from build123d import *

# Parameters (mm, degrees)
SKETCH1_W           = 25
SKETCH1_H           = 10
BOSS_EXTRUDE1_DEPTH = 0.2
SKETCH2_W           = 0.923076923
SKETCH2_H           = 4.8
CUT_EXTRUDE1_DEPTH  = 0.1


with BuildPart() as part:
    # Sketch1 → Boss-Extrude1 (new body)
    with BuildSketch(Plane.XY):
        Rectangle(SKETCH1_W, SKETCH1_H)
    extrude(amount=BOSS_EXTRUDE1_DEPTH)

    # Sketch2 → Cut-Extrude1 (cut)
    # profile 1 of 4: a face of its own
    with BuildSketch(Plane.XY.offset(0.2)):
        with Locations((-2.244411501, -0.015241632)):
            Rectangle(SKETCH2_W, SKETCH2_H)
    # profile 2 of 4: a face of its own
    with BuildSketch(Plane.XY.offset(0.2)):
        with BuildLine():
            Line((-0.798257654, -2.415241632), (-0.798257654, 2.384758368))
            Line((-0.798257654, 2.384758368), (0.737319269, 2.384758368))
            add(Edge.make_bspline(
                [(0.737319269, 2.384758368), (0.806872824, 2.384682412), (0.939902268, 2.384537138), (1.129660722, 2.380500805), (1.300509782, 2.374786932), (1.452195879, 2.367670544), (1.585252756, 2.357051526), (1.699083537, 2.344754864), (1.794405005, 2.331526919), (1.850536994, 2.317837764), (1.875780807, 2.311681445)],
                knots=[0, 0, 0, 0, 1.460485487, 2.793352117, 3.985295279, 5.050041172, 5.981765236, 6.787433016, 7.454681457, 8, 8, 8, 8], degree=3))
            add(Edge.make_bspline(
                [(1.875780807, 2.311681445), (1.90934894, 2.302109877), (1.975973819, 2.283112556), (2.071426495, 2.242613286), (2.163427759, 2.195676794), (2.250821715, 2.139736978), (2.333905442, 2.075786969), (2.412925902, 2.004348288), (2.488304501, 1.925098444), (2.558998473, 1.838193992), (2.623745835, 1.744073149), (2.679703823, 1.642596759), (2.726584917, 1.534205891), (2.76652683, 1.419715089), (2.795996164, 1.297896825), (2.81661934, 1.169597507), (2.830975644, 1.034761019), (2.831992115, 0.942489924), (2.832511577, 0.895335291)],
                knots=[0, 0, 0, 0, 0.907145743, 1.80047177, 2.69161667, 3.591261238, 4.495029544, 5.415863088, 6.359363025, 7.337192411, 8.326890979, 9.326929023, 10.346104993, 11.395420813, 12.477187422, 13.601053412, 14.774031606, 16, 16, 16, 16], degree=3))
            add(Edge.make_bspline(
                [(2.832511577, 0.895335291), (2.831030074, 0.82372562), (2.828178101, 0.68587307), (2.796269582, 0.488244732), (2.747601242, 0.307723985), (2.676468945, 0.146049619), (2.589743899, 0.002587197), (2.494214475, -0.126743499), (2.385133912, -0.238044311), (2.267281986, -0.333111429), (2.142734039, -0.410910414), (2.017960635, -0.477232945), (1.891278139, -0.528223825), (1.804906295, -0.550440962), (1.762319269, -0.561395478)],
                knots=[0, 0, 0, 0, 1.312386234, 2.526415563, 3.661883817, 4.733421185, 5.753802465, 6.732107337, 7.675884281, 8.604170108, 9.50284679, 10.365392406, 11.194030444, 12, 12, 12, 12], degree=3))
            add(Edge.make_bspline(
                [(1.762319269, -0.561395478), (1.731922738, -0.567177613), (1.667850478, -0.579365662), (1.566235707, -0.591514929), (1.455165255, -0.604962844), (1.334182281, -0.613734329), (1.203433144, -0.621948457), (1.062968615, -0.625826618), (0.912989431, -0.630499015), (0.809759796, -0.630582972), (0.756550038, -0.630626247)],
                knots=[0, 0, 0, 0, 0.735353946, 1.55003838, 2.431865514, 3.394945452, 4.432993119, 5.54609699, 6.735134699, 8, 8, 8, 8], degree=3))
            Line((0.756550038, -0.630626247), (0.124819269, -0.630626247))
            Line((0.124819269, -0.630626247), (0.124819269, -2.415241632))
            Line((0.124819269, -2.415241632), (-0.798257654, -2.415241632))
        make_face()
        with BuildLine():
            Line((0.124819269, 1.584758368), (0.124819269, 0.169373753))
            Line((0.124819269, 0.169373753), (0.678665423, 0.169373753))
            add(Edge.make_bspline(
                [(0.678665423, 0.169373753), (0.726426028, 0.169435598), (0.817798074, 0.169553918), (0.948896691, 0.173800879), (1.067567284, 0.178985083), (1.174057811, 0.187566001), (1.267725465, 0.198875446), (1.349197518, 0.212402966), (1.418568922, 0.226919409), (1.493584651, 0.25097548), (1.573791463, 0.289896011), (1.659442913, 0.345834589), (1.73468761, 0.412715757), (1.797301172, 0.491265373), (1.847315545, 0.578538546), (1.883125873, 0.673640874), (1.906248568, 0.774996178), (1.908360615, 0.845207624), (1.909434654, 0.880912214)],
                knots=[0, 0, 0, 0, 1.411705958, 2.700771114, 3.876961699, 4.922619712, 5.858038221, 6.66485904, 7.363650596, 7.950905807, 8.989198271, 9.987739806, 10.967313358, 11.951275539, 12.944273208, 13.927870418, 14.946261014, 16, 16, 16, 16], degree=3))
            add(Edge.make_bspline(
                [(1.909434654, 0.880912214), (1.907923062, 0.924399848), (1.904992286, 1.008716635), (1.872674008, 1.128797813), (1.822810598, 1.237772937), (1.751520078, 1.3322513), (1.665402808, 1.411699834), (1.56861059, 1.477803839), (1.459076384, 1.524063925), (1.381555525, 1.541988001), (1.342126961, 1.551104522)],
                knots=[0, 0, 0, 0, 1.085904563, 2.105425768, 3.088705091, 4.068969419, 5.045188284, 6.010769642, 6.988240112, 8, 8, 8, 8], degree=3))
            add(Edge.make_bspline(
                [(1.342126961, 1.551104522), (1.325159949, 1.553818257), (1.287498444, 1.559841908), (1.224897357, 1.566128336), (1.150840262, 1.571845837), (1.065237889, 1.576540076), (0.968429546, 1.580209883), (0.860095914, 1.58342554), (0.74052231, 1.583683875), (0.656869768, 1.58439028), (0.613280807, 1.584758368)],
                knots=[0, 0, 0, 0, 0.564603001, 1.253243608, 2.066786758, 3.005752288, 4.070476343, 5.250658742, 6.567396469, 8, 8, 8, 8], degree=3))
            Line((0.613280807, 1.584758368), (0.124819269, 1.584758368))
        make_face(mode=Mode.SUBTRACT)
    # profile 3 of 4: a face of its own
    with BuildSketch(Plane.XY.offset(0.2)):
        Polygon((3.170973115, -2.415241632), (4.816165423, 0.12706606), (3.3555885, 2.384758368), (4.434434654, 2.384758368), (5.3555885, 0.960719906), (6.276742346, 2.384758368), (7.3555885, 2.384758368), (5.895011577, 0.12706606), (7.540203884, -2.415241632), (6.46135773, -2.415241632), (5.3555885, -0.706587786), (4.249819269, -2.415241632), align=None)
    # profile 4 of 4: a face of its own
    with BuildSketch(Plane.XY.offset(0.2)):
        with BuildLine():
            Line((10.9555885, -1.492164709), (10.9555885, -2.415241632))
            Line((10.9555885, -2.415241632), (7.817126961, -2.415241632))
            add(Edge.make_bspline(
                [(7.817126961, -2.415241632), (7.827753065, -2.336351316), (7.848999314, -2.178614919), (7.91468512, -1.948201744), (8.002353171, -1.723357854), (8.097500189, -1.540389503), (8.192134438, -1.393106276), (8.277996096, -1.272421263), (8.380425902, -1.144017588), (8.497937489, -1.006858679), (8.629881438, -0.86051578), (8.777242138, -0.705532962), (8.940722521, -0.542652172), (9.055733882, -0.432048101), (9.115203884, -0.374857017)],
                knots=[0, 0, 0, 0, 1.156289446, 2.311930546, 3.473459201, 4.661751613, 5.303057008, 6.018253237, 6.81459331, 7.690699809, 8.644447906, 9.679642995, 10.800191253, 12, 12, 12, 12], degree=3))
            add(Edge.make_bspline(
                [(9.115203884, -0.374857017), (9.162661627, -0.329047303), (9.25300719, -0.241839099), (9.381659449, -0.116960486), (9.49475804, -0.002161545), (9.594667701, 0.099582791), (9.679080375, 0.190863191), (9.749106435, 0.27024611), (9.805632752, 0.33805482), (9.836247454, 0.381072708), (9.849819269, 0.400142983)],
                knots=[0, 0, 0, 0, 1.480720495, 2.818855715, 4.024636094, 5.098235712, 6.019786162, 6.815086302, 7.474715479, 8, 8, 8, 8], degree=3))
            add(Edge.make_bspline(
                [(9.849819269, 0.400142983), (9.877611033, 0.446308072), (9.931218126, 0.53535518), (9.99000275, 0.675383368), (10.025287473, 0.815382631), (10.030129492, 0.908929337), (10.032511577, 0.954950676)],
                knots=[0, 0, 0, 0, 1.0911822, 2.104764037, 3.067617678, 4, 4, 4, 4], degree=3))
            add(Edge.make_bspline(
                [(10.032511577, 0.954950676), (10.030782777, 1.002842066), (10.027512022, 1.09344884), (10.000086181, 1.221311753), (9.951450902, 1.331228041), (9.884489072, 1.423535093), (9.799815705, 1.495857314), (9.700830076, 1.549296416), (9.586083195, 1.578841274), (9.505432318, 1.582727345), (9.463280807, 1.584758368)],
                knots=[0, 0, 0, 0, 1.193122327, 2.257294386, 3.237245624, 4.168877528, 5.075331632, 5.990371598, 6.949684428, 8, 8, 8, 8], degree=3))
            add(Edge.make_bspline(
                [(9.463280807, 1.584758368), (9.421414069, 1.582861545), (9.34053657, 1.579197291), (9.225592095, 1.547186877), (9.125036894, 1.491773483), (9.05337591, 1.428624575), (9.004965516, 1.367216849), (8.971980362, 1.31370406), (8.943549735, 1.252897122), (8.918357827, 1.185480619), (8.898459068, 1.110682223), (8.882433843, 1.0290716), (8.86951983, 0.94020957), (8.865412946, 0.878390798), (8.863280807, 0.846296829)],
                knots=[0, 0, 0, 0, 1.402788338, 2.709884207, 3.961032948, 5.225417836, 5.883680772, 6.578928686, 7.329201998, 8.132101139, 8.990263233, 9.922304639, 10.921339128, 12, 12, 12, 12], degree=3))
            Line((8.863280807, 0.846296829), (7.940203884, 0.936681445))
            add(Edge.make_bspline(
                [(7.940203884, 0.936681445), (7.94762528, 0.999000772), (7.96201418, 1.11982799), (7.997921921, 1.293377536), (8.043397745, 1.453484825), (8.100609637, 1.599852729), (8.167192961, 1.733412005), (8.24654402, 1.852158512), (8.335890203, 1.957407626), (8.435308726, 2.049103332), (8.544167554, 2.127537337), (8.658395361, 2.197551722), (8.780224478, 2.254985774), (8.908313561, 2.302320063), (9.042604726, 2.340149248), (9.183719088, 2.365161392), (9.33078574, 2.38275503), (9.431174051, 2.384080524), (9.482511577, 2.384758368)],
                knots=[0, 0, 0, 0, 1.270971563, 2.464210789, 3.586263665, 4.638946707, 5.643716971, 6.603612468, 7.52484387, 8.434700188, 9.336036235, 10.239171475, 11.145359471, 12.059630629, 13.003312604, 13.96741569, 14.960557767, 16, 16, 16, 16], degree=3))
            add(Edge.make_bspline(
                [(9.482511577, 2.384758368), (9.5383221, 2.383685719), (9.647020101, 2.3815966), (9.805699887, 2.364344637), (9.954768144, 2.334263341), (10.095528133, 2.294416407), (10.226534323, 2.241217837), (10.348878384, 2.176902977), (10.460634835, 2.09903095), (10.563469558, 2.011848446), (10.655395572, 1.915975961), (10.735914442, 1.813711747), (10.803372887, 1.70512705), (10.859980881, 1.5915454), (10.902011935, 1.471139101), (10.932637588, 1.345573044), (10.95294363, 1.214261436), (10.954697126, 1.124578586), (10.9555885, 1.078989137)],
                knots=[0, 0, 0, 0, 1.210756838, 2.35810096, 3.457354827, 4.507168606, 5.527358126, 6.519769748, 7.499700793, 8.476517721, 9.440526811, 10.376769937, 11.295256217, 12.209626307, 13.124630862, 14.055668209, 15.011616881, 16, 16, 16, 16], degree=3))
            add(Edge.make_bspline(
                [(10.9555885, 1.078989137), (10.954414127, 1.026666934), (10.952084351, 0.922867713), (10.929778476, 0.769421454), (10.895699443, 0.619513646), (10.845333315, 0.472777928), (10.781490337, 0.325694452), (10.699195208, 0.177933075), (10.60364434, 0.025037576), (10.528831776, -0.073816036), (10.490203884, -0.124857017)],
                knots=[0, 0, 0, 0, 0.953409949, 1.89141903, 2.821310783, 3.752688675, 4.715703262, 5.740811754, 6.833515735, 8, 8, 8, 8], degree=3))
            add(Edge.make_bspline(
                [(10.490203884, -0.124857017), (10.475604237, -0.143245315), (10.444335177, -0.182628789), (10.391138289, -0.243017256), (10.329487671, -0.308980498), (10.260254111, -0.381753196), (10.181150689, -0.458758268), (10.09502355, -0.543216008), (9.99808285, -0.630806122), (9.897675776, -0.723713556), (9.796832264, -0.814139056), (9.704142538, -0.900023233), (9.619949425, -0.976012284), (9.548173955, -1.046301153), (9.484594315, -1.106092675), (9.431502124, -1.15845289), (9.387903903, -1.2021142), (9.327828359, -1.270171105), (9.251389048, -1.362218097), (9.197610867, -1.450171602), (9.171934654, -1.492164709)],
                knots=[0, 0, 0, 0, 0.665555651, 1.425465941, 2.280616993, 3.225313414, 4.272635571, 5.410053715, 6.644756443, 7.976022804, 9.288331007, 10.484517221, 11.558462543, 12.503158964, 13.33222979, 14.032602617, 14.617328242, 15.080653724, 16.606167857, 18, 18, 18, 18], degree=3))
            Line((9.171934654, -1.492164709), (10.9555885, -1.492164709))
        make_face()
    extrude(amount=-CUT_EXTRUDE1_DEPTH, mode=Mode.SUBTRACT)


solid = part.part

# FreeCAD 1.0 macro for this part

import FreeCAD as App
import Part
import Sketcher
Q = App.Units.Quantity


def add_polygon(sketch, points):
    """Adds a closed chain of lines whose ends are joined by coincident constraints."""
    first, n = sketch.GeometryCount, len(points)
    for a, b in zip(points, points[1:] + points[:1]):
        sketch.addGeometry(Part.LineSegment(App.Vector(*a, 0), App.Vector(*b, 0)), False)
    for i in range(n):
        sketch.addConstraint(Sketcher.Constraint("Coincident", first + i, 2, first + (i + 1) % n, 1))

doc = App.newDocument("Part")
body = doc.addObject("PartDesign::Body", "Body")

# Sketch on XY plane
sketch1 = body.newObject("Sketcher::SketchObject", "Sketch")
sketch1.AttachmentSupport = (doc.getObject("XY_Plane"), [""])
sketch1.MapMode = "FlatFace"
add_polygon(sketch1, [(-12, 5), (-12, -5), (12, -5), (12, 5)])  # lines 0-3
sketch1.addConstraint(Sketcher.Constraint("Vertical", 0))
sketch1.addConstraint(Sketcher.Constraint("Horizontal", 1))
sketch1.addConstraint(Sketcher.Constraint("Vertical", 2))
sketch1.addConstraint(Sketcher.Constraint("Horizontal", 3))
sketch1.addConstraint(Sketcher.Constraint("Symmetric", 0, 2, 2, 2, -1, 1))
sketch1.addConstraint(Sketcher.Constraint("DistanceX", 1, 1, 1, 2, Q("25 mm")))
sketch1.addConstraint(Sketcher.Constraint("DistanceY", 0, 2, 0, 1, Q("10 mm")))
pad1 = body.newObject("PartDesign::Pad", "Pad")
pad1.Profile = sketch1
pad1.Length = 0.2

# Sketch on XY plane
sketch2 = body.newObject("Sketcher::SketchObject", "Sketch001")
sketch2.AttachmentSupport = (doc.getObject("XY_Plane"), [""])
sketch2.MapMode = "FlatFace"
sketch2.AttachmentOffset = App.Placement(App.Vector(0, 0, 0.2), App.Rotation())
add_polygon(sketch2, [(-2.70595, 2.384758), (-2.70595, -2.415242), (-1.782873, -2.415242), (-1.782873, 2.384758)])  # lines 0-3
sketch2.addGeometry(Part.LineSegment(App.Vector(-0.798258, 2.384758, 0), App.Vector(-0.798258, -2.415242, 0)), False)  # 4
sketch2.addGeometry(Part.LineSegment(App.Vector(-0.798258, -2.415242, 0), App.Vector(0.124819, -2.415242, 0)), False)  # 5
sketch2.addGeometry(Part.LineSegment(App.Vector(0.124819, -2.415242, 0), App.Vector(0.124819, -0.630626, 0)), False)  # 6
sketch2.addGeometry(Part.LineSegment(App.Vector(0.124819, -0.630626, 0), App.Vector(0.75655, -0.630626, 0)), False)  # 7
sketch2.addGeometry(Part.BSplineCurve([App.Vector(1.762319, -0.561395, 0), App.Vector(1.731923, -0.567178, 0), App.Vector(1.66785, -0.579366, 0), App.Vector(1.566236, -0.591515, 0), App.Vector(1.455165, -0.604963, 0), App.Vector(1.334182, -0.613734, 0), App.Vector(1.203433, -0.621948, 0), App.Vector(1.062969, -0.625827, 0), App.Vector(0.912989, -0.630499, 0), App.Vector(0.80976, -0.630583, 0), App.Vector(0.75655, -0.630626, 0)], [4, 1, 1, 1, 1, 1, 1, 1, 4], [0, 0.735353946, 1.55003838, 2.431865514, 3.394945452, 4.432993119, 5.54609699, 6.735134699, 8], False, 3, [1, 1, 1, 1, 1, 1, 1, 1, 1, 1, 1], False), False)  # 8
sketch2.addGeometry(Part.BSplineCurve([App.Vector(2.832512, 0.895335, 0), App.Vector(2.83103, 0.823726, 0), App.Vector(2.828178, 0.685873, 0), App.Vector(2.79627, 0.488245, 0), App.Vector(2.747601, 0.307724, 0), App.Vector(2.676469, 0.14605, 0), App.Vector(2.589744, 0.002587, 0), App.Vector(2.494214, -0.126743, 0), App.Vector(2.385134, -0.238044, 0), App.Vector(2.267282, -0.333111, 0), App.Vector(2.142734, -0.41091, 0), App.Vector(2.017961, -0.477233, 0), App.Vector(1.891278, -0.528224, 0), App.Vector(1.804906, -0.550441, 0), App.Vector(1.762319, -0.561395, 0)], [4, 1, 1, 1, 1, 1, 1, 1, 1, 1, 1, 1, 4], [0, 1.312386234, 2.526415563, 3.661883817, 4.733421185, 5.753802465, 6.732107337, 7.675884281, 8.604170108, 9.50284679, 10.365392406, 11.194030444, 12], False, 3, [1, 1, 1, 1, 1, 1, 1, 1, 1, 1, 1, 1, 1, 1, 1], False), False)  # 9
sketch2.addGeometry(Part.BSplineCurve([App.Vector(1.875781, 2.311681, 0), App.Vector(1.909349, 2.30211, 0), App.Vector(1.975974, 2.283113, 0), App.Vector(2.071426, 2.242613, 0), App.Vector(2.163428, 2.195677, 0), App.Vector(2.250822, 2.139737, 0), App.Vector(2.333905, 2.075787, 0), App.Vector(2.412926, 2.004348, 0), App.Vector(2.488305, 1.925098, 0), App.Vector(2.558998, 1.838194, 0), App.Vector(2.623746, 1.744073, 0), App.Vector(2.679704, 1.642597, 0), App.Vector(2.726585, 1.534206, 0), App.Vector(2.766527, 1.419715, 0), App.Vector(2.795996, 1.297897, 0), App.Vector(2.816619, 1.169598, 0), App.Vector(2.830976, 1.034761, 0), App.Vector(2.831992, 0.94249, 0), App.Vector(2.832512, 0.895335, 0)], [4, 1, 1, 1, 1, 1, 1, 1, 1, 1, 1, 1, 1, 1, 1, 1, 4], [0, 0.907145743, 1.80047177, 2.69161667, 3.591261238, 4.495029544, 5.415863088, 6.359363025, 7.337192411, 8.326890979, 9.326929023, 10.346104993, 11.395420813, 12.477187422, 13.601053412, 14.774031606, 16], False, 3, [1, 1, 1, 1, 1, 1, 1, 1, 1, 1, 1, 1, 1, 1, 1, 1, 1, 1, 1], False), False)  # 10
sketch2.addGeometry(Part.BSplineCurve([App.Vector(0.737319, 2.384758, 0), App.Vector(0.806873, 2.384682, 0), App.Vector(0.939902, 2.384537, 0), App.Vector(1.129661, 2.380501, 0), App.Vector(1.30051, 2.374787, 0), App.Vector(1.452196, 2.367671, 0), App.Vector(1.585253, 2.357052, 0), App.Vector(1.699084, 2.344755, 0), App.Vector(1.794405, 2.331527, 0), App.Vector(1.850537, 2.317838, 0), App.Vector(1.875781, 2.311681, 0)], [4, 1, 1, 1, 1, 1, 1, 1, 4], [0, 1.460485487, 2.793352117, 3.985295279, 5.050041172, 5.981765236, 6.787433016, 7.454681457, 8], False, 3, [1, 1, 1, 1, 1, 1, 1, 1, 1, 1, 1], False), False)  # 11
sketch2.addGeometry(Part.LineSegment(App.Vector(0.737319, 2.384758, 0), App.Vector(-0.798258, 2.384758, 0)), False)  # 12
sketch2.addGeometry(Part.LineSegment(App.Vector(0.124819, 1.584758, 0), App.Vector(0.613281, 1.584758, 0)), False)  # 13
sketch2.addGeometry(Part.BSplineCurve([App.Vector(1.342127, 1.551105, 0), App.Vector(1.32516, 1.553818, 0), App.Vector(1.287498, 1.559842, 0), App.Vector(1.224897, 1.566128, 0), App.Vector(1.15084, 1.571846, 0), App.Vector(1.065238, 1.57654, 0), App.Vector(0.96843, 1.58021, 0), App.Vector(0.860096, 1.583426, 0), App.Vector(0.740522, 1.583684, 0), App.Vector(0.65687, 1.58439, 0), App.Vector(0.613281, 1.584758, 0)], [4, 1, 1, 1, 1, 1, 1, 1, 4], [0, 0.564603001, 1.253243608, 2.066786758, 3.005752288, 4.070476343, 5.250658742, 6.567396469, 8], False, 3, [1, 1, 1, 1, 1, 1, 1, 1, 1, 1, 1], False), False)  # 14
sketch2.addGeometry(Part.BSplineCurve([App.Vector(1.909435, 0.880912, 0), App.Vector(1.907923, 0.9244, 0), App.Vector(1.904992, 1.008717, 0), App.Vector(1.872674, 1.128798, 0), App.Vector(1.822811, 1.237773, 0), App.Vector(1.75152, 1.332251, 0), App.Vector(1.665403, 1.4117, 0), App.Vector(1.568611, 1.477804, 0), App.Vector(1.459076, 1.524064, 0), App.Vector(1.381556, 1.541988, 0), App.Vector(1.342127, 1.551105, 0)], [4, 1, 1, 1, 1, 1, 1, 1, 4], [0, 1.085904563, 2.105425768, 3.088705091, 4.068969419, 5.045188284, 6.010769642, 6.988240112, 8], False, 3, [1, 1, 1, 1, 1, 1, 1, 1, 1, 1, 1], False), False)  # 15
sketch2.addGeometry(Part.BSplineCurve([App.Vector(0.678665, 0.169374, 0), App.Vector(0.726426, 0.169436, 0), App.Vector(0.817798, 0.169554, 0), App.Vector(0.948897, 0.173801, 0), App.Vector(1.067567, 0.178985, 0), App.Vector(1.174058, 0.187566, 0), App.Vector(1.267725, 0.198875, 0), App.Vector(1.349198, 0.212403, 0), App.Vector(1.418569, 0.226919, 0), App.Vector(1.493585, 0.250975, 0), App.Vector(1.573791, 0.289896, 0), App.Vector(1.659443, 0.345835, 0), App.Vector(1.734688, 0.412716, 0), App.Vector(1.797301, 0.491265, 0), App.Vector(1.847316, 0.578539, 0), App.Vector(1.883126, 0.673641, 0), App.Vector(1.906249, 0.774996, 0), App.Vector(1.908361, 0.845208, 0), App.Vector(1.909435, 0.880912, 0)], [4, 1, 1, 1, 1, 1, 1, 1, 1, 1, 1, 1, 1, 1, 1, 1, 4], [0, 1.411705958, 2.700771114, 3.876961699, 4.922619712, 5.858038221, 6.66485904, 7.363650596, 7.950905807, 8.989198271, 9.987739806, 10.967313358, 11.951275539, 12.944273208, 13.927870418, 14.946261014, 16], False, 3, [1, 1, 1, 1, 1, 1, 1, 1, 1, 1, 1, 1, 1, 1, 1, 1, 1, 1, 1], False), False)  # 16
sketch2.addGeometry(Part.LineSegment(App.Vector(0.678665, 0.169374, 0), App.Vector(0.124819, 0.169374, 0)), False)  # 17
sketch2.addGeometry(Part.LineSegment(App.Vector(0.124819, 0.169374, 0), App.Vector(0.124819, 1.584758, 0)), False)  # 18
add_polygon(sketch2, [(4.816165, 0.127066), (3.170973, -2.415242), (4.249819, -2.415242), (5.355588, -0.706588), (6.461358, -2.415242), (7.540204, -2.415242), (5.895012, 0.127066), (7.355588, 2.384758), (6.276742, 2.384758), (5.355588, 0.96072), (4.434435, 2.384758), (3.355589, 2.384758)])  # lines 19-30
sketch2.addGeometry(Part.LineSegment(App.Vector(10.955588, -2.415242, 0), App.Vector(10.955588, -1.492165, 0)), False)  # 31
sketch2.addGeometry(Part.LineSegment(App.Vector(10.955588, -1.492165, 0), App.Vector(9.171935, -1.492165, 0)), False)  # 32
sketch2.addGeometry(Part.BSplineCurve([App.Vector(10.490204, -0.124857, 0), App.Vector(10.475604, -0.143245, 0), App.Vector(10.444335, -0.182629, 0), App.Vector(10.391138, -0.243017, 0), App.Vector(10.329488, -0.30898, 0), App.Vector(10.260254, -0.381753, 0), App.Vector(10.181151, -0.458758, 0), App.Vector(10.095024, -0.543216, 0), App.Vector(9.998083, -0.630806, 0), App.Vector(9.897676, -0.723714, 0), App.Vector(9.796832, -0.814139, 0), App.Vector(9.704143, -0.900023, 0), App.Vector(9.619949, -0.976012, 0), App.Vector(9.548174, -1.046301, 0), App.Vector(9.484594, -1.106093, 0), App.Vector(9.431502, -1.158453, 0), App.Vector(9.387904, -1.202114, 0), App.Vector(9.327828, -1.270171, 0), App.Vector(9.251389, -1.362218, 0), App.Vector(9.197611, -1.450172, 0), App.Vector(9.171935, -1.492165, 0)], [4, 1, 1, 1, 1, 1, 1, 1, 1, 1, 1, 1, 1, 1, 1, 1, 1, 1, 4], [0, 0.665555651, 1.425465941, 2.280616993, 3.225313414, 4.272635571, 5.410053715, 6.644756443, 7.976022804, 9.288331007, 10.484517221, 11.558462543, 12.503158964, 13.33222979, 14.032602617, 14.617328242, 15.080653724, 16.606167857, 18], False, 3, [1, 1, 1, 1, 1, 1, 1, 1, 1, 1, 1, 1, 1, 1, 1, 1, 1, 1, 1, 1, 1], False), False)  # 33
sketch2.addGeometry(Part.BSplineCurve([App.Vector(10.955588, 1.078989, 0), App.Vector(10.954414, 1.026667, 0), App.Vector(10.952084, 0.922868, 0), App.Vector(10.929778, 0.769421, 0), App.Vector(10.895699, 0.619514, 0), App.Vector(10.845333, 0.472778, 0), App.Vector(10.78149, 0.325694, 0), App.Vector(10.699195, 0.177933, 0), App.Vector(10.603644, 0.025038, 0), App.Vector(10.528832, -0.073816, 0), App.Vector(10.490204, -0.124857, 0)], [4, 1, 1, 1, 1, 1, 1, 1, 4], [0, 0.953409949, 1.89141903, 2.821310783, 3.752688675, 4.715703262, 5.740811754, 6.833515735, 8], False, 3, [1, 1, 1, 1, 1, 1, 1, 1, 1, 1, 1], False), False)  # 34
sketch2.addGeometry(Part.BSplineCurve([App.Vector(9.482512, 2.384758, 0), App.Vector(9.538322, 2.383686, 0), App.Vector(9.64702, 2.381597, 0), App.Vector(9.8057, 2.364345, 0), App.Vector(9.954768, 2.334263, 0), App.Vector(10.095528, 2.294416, 0), App.Vector(10.226534, 2.241218, 0), App.Vector(10.348878, 2.176903, 0), App.Vector(10.460635, 2.099031, 0), App.Vector(10.56347, 2.011848, 0), App.Vector(10.655396, 1.915976, 0), App.Vector(10.735914, 1.813712, 0), App.Vector(10.803373, 1.705127, 0), App.Vector(10.859981, 1.591545, 0), App.Vector(10.902012, 1.471139, 0), App.Vector(10.932638, 1.345573, 0), App.Vector(10.952944, 1.214261, 0), App.Vector(10.954697, 1.124579, 0), App.Vector(10.955588, 1.078989, 0)], [4, 1, 1, 1, 1, 1, 1, 1, 1, 1, 1, 1, 1, 1, 1, 1, 4], [0, 1.210756838, 2.35810096, 3.457354827, 4.507168606, 5.527358126, 6.519769748, 7.499700793, 8.476517721, 9.440526811, 10.376769937, 11.295256217, 12.209626307, 13.124630862, 14.055668209, 15.011616881, 16], False, 3, [1, 1, 1, 1, 1, 1, 1, 1, 1, 1, 1, 1, 1, 1, 1, 1, 1, 1, 1], False), False)  # 35
sketch2.addGeometry(Part.BSplineCurve([App.Vector(7.940204, 0.936681, 0), App.Vector(7.947625, 0.999001, 0), App.Vector(7.962014, 1.119828, 0), App.Vector(7.997922, 1.293378, 0), App.Vector(8.043398, 1.453485, 0), App.Vector(8.10061, 1.599853, 0), App.Vector(8.167193, 1.733412, 0), App.Vector(8.246544, 1.852159, 0), App.Vector(8.33589, 1.957408, 0), App.Vector(8.435309, 2.049103, 0), App.Vector(8.544168, 2.127537, 0), App.Vector(8.658395, 2.197552, 0), App.Vector(8.780224, 2.254986, 0), App.Vector(8.908314, 2.30232, 0), App.Vector(9.042605, 2.340149, 0), App.Vector(9.183719, 2.365161, 0), App.Vector(9.330786, 2.382755, 0), App.Vector(9.431174, 2.384081, 0), App.Vector(9.482512, 2.384758, 0)], [4, 1, 1, 1, 1, 1, 1, 1, 1, 1, 1, 1, 1, 1, 1, 1, 4], [0, 1.270971563, 2.464210789, 3.586263665, 4.638946707, 5.643716971, 6.603612468, 7.52484387, 8.434700188, 9.336036235, 10.239171475, 11.145359471, 12.059630629, 13.003312604, 13.96741569, 14.960557767, 16], False, 3, [1, 1, 1, 1, 1, 1, 1, 1, 1, 1, 1, 1, 1, 1, 1, 1, 1, 1, 1], False), False)  # 36
sketch2.addGeometry(Part.LineSegment(App.Vector(7.940204, 0.936681, 0), App.Vector(8.863281, 0.846297, 0)), False)  # 37
sketch2.addGeometry(Part.BSplineCurve([App.Vector(9.463281, 1.584758, 0), App.Vector(9.421414, 1.582862, 0), App.Vector(9.340537, 1.579197, 0), App.Vector(9.225592, 1.547187, 0), App.Vector(9.125037, 1.491773, 0), App.Vector(9.053376, 1.428625, 0), App.Vector(9.004966, 1.367217, 0), App.Vector(8.97198, 1.313704, 0), App.Vector(8.94355, 1.252897, 0), App.Vector(8.918358, 1.185481, 0), App.Vector(8.898459, 1.110682, 0), App.Vector(8.882434, 1.029072, 0), App.Vector(8.86952, 0.94021, 0), App.Vector(8.865413, 0.878391, 0), App.Vector(8.863281, 0.846297, 0)], [4, 1, 1, 1, 1, 1, 1, 1, 1, 1, 1, 1, 4], [0, 1.402788338, 2.709884207, 3.961032948, 5.225417836, 5.883680772, 6.578928686, 7.329201998, 8.132101139, 8.990263233, 9.922304639, 10.921339128, 12], False, 3, [1, 1, 1, 1, 1, 1, 1, 1, 1, 1, 1, 1, 1, 1, 1], False), False)  # 38
sketch2.addGeometry(Part.BSplineCurve([App.Vector(10.032512, 0.954951, 0), App.Vector(10.030783, 1.002842, 0), App.Vector(10.027512, 1.093449, 0), App.Vector(10.000086, 1.221312, 0), App.Vector(9.951451, 1.331228, 0), App.Vector(9.884489, 1.423535, 0), App.Vector(9.799816, 1.495857, 0), App.Vector(9.70083, 1.549296, 0), App.Vector(9.586083, 1.578841, 0), App.Vector(9.505432, 1.582727, 0), App.Vector(9.463281, 1.584758, 0)], [4, 1, 1, 1, 1, 1, 1, 1, 4], [0, 1.193122327, 2.257294386, 3.237245624, 4.168877528, 5.075331632, 5.990371598, 6.949684428, 8], False, 3, [1, 1, 1, 1, 1, 1, 1, 1, 1, 1, 1], False), False)  # 39
sketch2.addGeometry(Part.BSplineCurve([App.Vector(9.849819, 0.400143, 0), App.Vector(9.877611, 0.446308, 0), App.Vector(9.931218, 0.535355, 0), App.Vector(9.990003, 0.675383, 0), App.Vector(10.025287, 0.815383, 0), App.Vector(10.030129, 0.908929, 0), App.Vector(10.032512, 0.954951, 0)], [4, 1, 1, 1, 4], [0, 1.0911822, 2.104764037, 3.067617678, 4], False, 3, [1, 1, 1, 1, 1, 1, 1], False), False)  # 40
sketch2.addGeometry(Part.BSplineCurve([App.Vector(9.115204, -0.374857, 0), App.Vector(9.162662, -0.329047, 0), App.Vector(9.253007, -0.241839, 0), App.Vector(9.381659, -0.11696, 0), App.Vector(9.494758, -0.002162, 0), App.Vector(9.594668, 0.099583, 0), App.Vector(9.67908, 0.190863, 0), App.Vector(9.749106, 0.270246, 0), App.Vector(9.805633, 0.338055, 0), App.Vector(9.836247, 0.381073, 0), App.Vector(9.849819, 0.400143, 0)], [4, 1, 1, 1, 1, 1, 1, 1, 4], [0, 1.480720495, 2.818855715, 4.024636094, 5.098235712, 6.019786162, 6.815086302, 7.474715479, 8], False, 3, [1, 1, 1, 1, 1, 1, 1, 1, 1, 1, 1], False), False)  # 41
sketch2.addGeometry(Part.BSplineCurve([App.Vector(7.817127, -2.415242, 0), App.Vector(7.827753, -2.336351, 0), App.Vector(7.848999, -2.178615, 0), App.Vector(7.914685, -1.948202, 0), App.Vector(8.002353, -1.723358, 0), App.Vector(8.0975, -1.54039, 0), App.Vector(8.192134, -1.393106, 0), App.Vector(8.277996, -1.272421, 0), App.Vector(8.380426, -1.144018, 0), App.Vector(8.497937, -1.006859, 0), App.Vector(8.629881, -0.860516, 0), App.Vector(8.777242, -0.705533, 0), App.Vector(8.940723, -0.542652, 0), App.Vector(9.055734, -0.432048, 0), App.Vector(9.115204, -0.374857, 0)], [4, 1, 1, 1, 1, 1, 1, 1, 1, 1, 1, 1, 4], [0, 1.156289446, 2.311930546, 3.473459201, 4.661751613, 5.303057008, 6.018253237, 6.81459331, 7.690699809, 8.644447906, 9.679642995, 10.800191253, 12], False, 3, [1, 1, 1, 1, 1, 1, 1, 1, 1, 1, 1, 1, 1, 1, 1], False), False)  # 42
sketch2.addGeometry(Part.LineSegment(App.Vector(7.817127, -2.415242, 0), App.Vector(10.955588, -2.415242, 0)), False)  # 43
sketch2.addConstraint(Sketcher.Constraint("Block", 8))
sketch2.addConstraint(Sketcher.Constraint("Block", 9))
sketch2.addConstraint(Sketcher.Constraint("Block", 10))
sketch2.addConstraint(Sketcher.Constraint("Block", 11))
sketch2.addConstraint(Sketcher.Constraint("Block", 14))
sketch2.addConstraint(Sketcher.Constraint("Block", 15))
sketch2.addConstraint(Sketcher.Constraint("Block", 16))
sketch2.addConstraint(Sketcher.Constraint("Block", 33))
sketch2.addConstraint(Sketcher.Constraint("Block", 34))
sketch2.addConstraint(Sketcher.Constraint("Block", 35))
sketch2.addConstraint(Sketcher.Constraint("Block", 36))
sketch2.addConstraint(Sketcher.Constraint("Block", 38))
sketch2.addConstraint(Sketcher.Constraint("Block", 39))
sketch2.addConstraint(Sketcher.Constraint("Block", 40))
sketch2.addConstraint(Sketcher.Constraint("Block", 41))
sketch2.addConstraint(Sketcher.Constraint("Block", 42))
sketch2.addConstraint(Sketcher.Constraint("Coincident", 4, 2, 5, 1))
sketch2.addConstraint(Sketcher.Constraint("Coincident", 5, 2, 6, 1))
sketch2.addConstraint(Sketcher.Constraint("Coincident", 6, 2, 7, 1))
sketch2.addConstraint(Sketcher.Constraint("Coincident", 7, 2, 8, 2))
sketch2.addConstraint(Sketcher.Constraint("Coincident", 11, 1, 12, 1))
sketch2.addConstraint(Sketcher.Constraint("Coincident", 12, 2, 4, 1))
sketch2.addConstraint(Sketcher.Constraint("Coincident", 13, 2, 14, 2))
sketch2.addConstraint(Sketcher.Constraint("Coincident", 16, 1, 17, 1))
sketch2.addConstraint(Sketcher.Constraint("Coincident", 17, 2, 18, 1))
sketch2.addConstraint(Sketcher.Constraint("Coincident", 18, 2, 13, 1))
sketch2.addConstraint(Sketcher.Constraint("Coincident", 31, 2, 32, 1))
sketch2.addConstraint(Sketcher.Constraint("Coincident", 32, 2, 33, 2))
sketch2.addConstraint(Sketcher.Constraint("Coincident", 36, 1, 37, 1))
sketch2.addConstraint(Sketcher.Constraint("Coincident", 37, 2, 38, 2))
sketch2.addConstraint(Sketcher.Constraint("Coincident", 42, 1, 43, 1))
sketch2.addConstraint(Sketcher.Constraint("Coincident", 43, 2, 31, 1))
sketch2.addConstraint(Sketcher.Constraint("Vertical", 0))
sketch2.addConstraint(Sketcher.Constraint("Horizontal", 1))
sketch2.addConstraint(Sketcher.Constraint("Vertical", 2))
sketch2.addConstraint(Sketcher.Constraint("Horizontal", 3))
sketch2.addConstraint(Sketcher.Constraint("Vertical", 4))
sketch2.addConstraint(Sketcher.Constraint("Horizontal", 5))
sketch2.addConstraint(Sketcher.Constraint("Vertical", 6))
sketch2.addConstraint(Sketcher.Constraint("Horizontal", 7))
sketch2.addConstraint(Sketcher.Constraint("Horizontal", 12))
sketch2.addConstraint(Sketcher.Constraint("Horizontal", 13))
sketch2.addConstraint(Sketcher.Constraint("Horizontal", 17))
sketch2.addConstraint(Sketcher.Constraint("Vertical", 18))
sketch2.addConstraint(Sketcher.Constraint("Horizontal", 20))
sketch2.addConstraint(Sketcher.Constraint("Horizontal", 23))
sketch2.addConstraint(Sketcher.Constraint("Horizontal", 26))
sketch2.addConstraint(Sketcher.Constraint("Horizontal", 29))
sketch2.addConstraint(Sketcher.Constraint("Vertical", 31))
sketch2.addConstraint(Sketcher.Constraint("Horizontal", 32))
sketch2.addConstraint(Sketcher.Constraint("Horizontal", 43))
sketch2.addConstraint(Sketcher.Constraint("Horizontal", 1, 2, 4, 2))
sketch2.addConstraint(Sketcher.Constraint("Horizontal", 3, 2, 12, 2))
sketch2.addConstraint(Sketcher.Constraint("Horizontal", 5, 2, 19, 2))
sketch2.addConstraint(Sketcher.Constraint("Horizontal", 20, 2, 22, 2))
sketch2.addConstraint(Sketcher.Constraint("Horizontal", 12, 2, 25, 2))
sketch2.addConstraint(Sketcher.Constraint("Horizontal", 26, 2, 28, 2))
sketch2.addConstraint(Sketcher.Constraint("Horizontal", 24, 2, 30, 2))
sketch2.addConstraint(Sketcher.Constraint("Horizontal", 23, 2, 43, 2))
sketch2.addConstraint(Sketcher.Constraint("Vertical", 6, 2, 17, 2))
sketch2.addConstraint(Sketcher.Constraint("Vertical", 21, 2, 27, 2))
sketch2.addConstraint(Sketcher.Constraint("Equal", 3, 5))
sketch2.addConstraint(Sketcher.Constraint("Equal", 20, 23))
sketch2.addConstraint(Sketcher.Constraint("Equal", 23, 26))
sketch2.addConstraint(Sketcher.Constraint("Equal", 26, 29))
sketch2.addConstraint(Sketcher.Constraint("Equal", 5, 31))
sketch2.addConstraint(Sketcher.Constraint("Equal", 21, 22))
sketch2.addConstraint(Sketcher.Constraint("Equal", 19, 24))
sketch2.addConstraint(Sketcher.Constraint("Equal", 27, 28))
sketch2.addConstraint(Sketcher.Constraint("DistanceX", 21, 2, 25, 2, Q("2 mm")))
sketch2.addConstraint(Sketcher.Constraint("DistanceX", 25, 2, 31, 2, Q("3.6 mm")))
sketch2.addConstraint(Sketcher.Constraint("Distance", 27, Q("1.695998 mm")))
sketch2.addConstraint(Sketcher.Constraint("DistanceX", 5, 2, 20, 2, Q("4.125 mm")))
sketch2.addConstraint(Sketcher.Constraint("Distance", 19, Q("3.028198 mm")))
sketch2.addConstraint(Sketcher.Constraint("DistanceX", 7, 1, 7, 2, Q("0.631731 mm")))
sketch2.addConstraint(Sketcher.Constraint("DistanceX", 43, 1, 43, 2, Q("3.138462 mm")))
sketch2.addConstraint(Sketcher.Constraint("DistanceX", 0, 2, 7, 2, Q("3.4625 mm")))
sketch2.addConstraint(Sketcher.Constraint("Distance", 25, Q("2.688951 mm")))
sketch2.addConstraint(Sketcher.Constraint("DistanceX", 20, 1, 20, 2, Q("1.078846 mm")))
sketch2.addConstraint(Sketcher.Constraint("DistanceY", 21, 2, 7, 2, Q("0.075962 mm")))
pocket1 = body.newObject("PartDesign::Pocket", "Pocket")
pocket1.Profile = sketch2
pocket1.Length = 0.1

doc.recompute()
